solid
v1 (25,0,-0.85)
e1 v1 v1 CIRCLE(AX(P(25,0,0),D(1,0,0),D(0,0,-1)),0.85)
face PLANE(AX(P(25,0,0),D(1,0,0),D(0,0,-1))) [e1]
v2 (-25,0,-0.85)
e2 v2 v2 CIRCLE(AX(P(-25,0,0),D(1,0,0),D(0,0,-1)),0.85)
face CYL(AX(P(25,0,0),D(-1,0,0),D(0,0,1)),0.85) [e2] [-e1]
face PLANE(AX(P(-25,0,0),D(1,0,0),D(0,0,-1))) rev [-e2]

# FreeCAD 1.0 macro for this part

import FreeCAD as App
import Part
import Sketcher

doc = App.newDocument("Part")
body = doc.addObject("PartDesign::Body", "Body")

# Sketch on YZ plane
sketch1 = body.newObject("Sketcher::SketchObject", "Sketch")
sketch1.AttachmentSupport = (doc.getObject("YZ_Plane"), [""])
sketch1.MapMode = "FlatFace"
sketch1.addGeometry(Part.Circle(App.Vector(0, 0, 0), App.Vector(0, 0, 1), 0.8), False)
sketch1.addConstraint([
    Sketcher.Constraint("Coincident", 0, 3, -1, 1),
    Sketcher.Constraint("Diameter", 0, 1.7),
])
pad1 = body.newObject("PartDesign::Pad", "Pad")
pad1.Profile = sketch1
pad1.Length = 50
pad1.Midplane = True

doc.recompute()
